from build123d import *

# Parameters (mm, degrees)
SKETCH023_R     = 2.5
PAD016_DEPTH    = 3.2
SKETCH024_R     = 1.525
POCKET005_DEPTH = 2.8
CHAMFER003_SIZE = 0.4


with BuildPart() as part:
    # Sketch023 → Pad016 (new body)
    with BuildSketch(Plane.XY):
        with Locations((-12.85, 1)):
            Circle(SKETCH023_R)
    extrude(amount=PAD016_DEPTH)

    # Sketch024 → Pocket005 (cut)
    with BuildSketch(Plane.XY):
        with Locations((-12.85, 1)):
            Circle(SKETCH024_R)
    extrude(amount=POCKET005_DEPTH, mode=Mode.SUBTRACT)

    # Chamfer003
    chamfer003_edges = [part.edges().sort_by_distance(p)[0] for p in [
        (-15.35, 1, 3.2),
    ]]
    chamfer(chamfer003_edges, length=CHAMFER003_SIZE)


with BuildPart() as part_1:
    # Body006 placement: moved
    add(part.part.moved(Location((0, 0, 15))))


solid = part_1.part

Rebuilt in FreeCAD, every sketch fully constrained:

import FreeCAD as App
import Part
import Sketcher

V = App.Vector
Q = App.Units.Quantity


def edges_at(feature, points):
    """Names of the edges that pass closest to the given points."""
    edges = feature.Shape.Edges
    near = lambda p: min(range(len(edges)), key=lambda i: edges[i].distToShape(Part.Vertex(*p))[0])
    return sorted({f"Edge{near(p) + 1}" for p in points})

doc = App.newDocument("Part")
body = doc.addObject("PartDesign::Body", "Body")

# Sketch on XY plane
sketch1 = doc.addObject("Sketcher::SketchObject", "Sketch")
body.addObject(sketch1)
sketch1.AttachmentSupport = (doc.XY_Plane, [""])
sketch1.MapMode = "FlatFace"
sketch1.addGeometry(Part.Circle(V(-12.85, 1, 0), V(0, 0, 1), 2.5), False)
sketch1.addConstraint([
    Sketcher.Constraint("Diameter", 0, Q("5 mm")),
    Sketcher.Constraint("DistanceY", -1, 1, 0, 3, Q("1 mm")),
    Sketcher.Constraint("DistanceX", 0, 3, -1, 1, Q("12.85 mm")),
])
pad1 = doc.addObject("PartDesign::Pad", "Pad")
body.addObject(pad1)
pad1.Profile = sketch1
pad1.Length = 3.2

# Sketch on XY plane
sketch2 = doc.addObject("Sketcher::SketchObject", "Sketch001")
body.addObject(sketch2)
sketch2.AttachmentSupport = (doc.XY_Plane, [""])
sketch2.MapMode = "FlatFace"
sketch2.addGeometry(Part.Circle(V(-12.85, 1, 0), V(0, 0, 1), 1.525), False)
sketch2.addConstraint([
    Sketcher.Constraint("Diameter", 0, Q("3.05 mm")),
    Sketcher.Constraint("DistanceY", -1, 1, 0, 3, Q("1 mm")),
    Sketcher.Constraint("DistanceX", 0, 3, -1, 1, Q("12.85 mm")),
])
pocket1 = doc.addObject("PartDesign::Pocket", "Pocket")
body.addObject(pocket1)
pocket1.Profile = sketch2
pocket1.Length = 2.8
pocket1.Reversed = True
doc.recompute()

chamfer = doc.addObject("PartDesign::Chamfer", "Chamfer")
body.addObject(chamfer)
chamfer.Base = (pocket1, edges_at(pocket1, [(-15.35, 1, 3.2)]))
chamfer.Size = 0.4
body2 = doc.addObject("PartDesign::Body", "Body001")
doc.recompute()

body.Placement = App.Placement(V(0, 0, 15), App.Rotation(V(0, 0, 1), 0))
boolean = doc.addObject("PartDesign::Boolean", "Boolean")
body2.addObject(boolean)
boolean.Type = "Fuse"
boolean.addObjects([body])

doc.recompute()
